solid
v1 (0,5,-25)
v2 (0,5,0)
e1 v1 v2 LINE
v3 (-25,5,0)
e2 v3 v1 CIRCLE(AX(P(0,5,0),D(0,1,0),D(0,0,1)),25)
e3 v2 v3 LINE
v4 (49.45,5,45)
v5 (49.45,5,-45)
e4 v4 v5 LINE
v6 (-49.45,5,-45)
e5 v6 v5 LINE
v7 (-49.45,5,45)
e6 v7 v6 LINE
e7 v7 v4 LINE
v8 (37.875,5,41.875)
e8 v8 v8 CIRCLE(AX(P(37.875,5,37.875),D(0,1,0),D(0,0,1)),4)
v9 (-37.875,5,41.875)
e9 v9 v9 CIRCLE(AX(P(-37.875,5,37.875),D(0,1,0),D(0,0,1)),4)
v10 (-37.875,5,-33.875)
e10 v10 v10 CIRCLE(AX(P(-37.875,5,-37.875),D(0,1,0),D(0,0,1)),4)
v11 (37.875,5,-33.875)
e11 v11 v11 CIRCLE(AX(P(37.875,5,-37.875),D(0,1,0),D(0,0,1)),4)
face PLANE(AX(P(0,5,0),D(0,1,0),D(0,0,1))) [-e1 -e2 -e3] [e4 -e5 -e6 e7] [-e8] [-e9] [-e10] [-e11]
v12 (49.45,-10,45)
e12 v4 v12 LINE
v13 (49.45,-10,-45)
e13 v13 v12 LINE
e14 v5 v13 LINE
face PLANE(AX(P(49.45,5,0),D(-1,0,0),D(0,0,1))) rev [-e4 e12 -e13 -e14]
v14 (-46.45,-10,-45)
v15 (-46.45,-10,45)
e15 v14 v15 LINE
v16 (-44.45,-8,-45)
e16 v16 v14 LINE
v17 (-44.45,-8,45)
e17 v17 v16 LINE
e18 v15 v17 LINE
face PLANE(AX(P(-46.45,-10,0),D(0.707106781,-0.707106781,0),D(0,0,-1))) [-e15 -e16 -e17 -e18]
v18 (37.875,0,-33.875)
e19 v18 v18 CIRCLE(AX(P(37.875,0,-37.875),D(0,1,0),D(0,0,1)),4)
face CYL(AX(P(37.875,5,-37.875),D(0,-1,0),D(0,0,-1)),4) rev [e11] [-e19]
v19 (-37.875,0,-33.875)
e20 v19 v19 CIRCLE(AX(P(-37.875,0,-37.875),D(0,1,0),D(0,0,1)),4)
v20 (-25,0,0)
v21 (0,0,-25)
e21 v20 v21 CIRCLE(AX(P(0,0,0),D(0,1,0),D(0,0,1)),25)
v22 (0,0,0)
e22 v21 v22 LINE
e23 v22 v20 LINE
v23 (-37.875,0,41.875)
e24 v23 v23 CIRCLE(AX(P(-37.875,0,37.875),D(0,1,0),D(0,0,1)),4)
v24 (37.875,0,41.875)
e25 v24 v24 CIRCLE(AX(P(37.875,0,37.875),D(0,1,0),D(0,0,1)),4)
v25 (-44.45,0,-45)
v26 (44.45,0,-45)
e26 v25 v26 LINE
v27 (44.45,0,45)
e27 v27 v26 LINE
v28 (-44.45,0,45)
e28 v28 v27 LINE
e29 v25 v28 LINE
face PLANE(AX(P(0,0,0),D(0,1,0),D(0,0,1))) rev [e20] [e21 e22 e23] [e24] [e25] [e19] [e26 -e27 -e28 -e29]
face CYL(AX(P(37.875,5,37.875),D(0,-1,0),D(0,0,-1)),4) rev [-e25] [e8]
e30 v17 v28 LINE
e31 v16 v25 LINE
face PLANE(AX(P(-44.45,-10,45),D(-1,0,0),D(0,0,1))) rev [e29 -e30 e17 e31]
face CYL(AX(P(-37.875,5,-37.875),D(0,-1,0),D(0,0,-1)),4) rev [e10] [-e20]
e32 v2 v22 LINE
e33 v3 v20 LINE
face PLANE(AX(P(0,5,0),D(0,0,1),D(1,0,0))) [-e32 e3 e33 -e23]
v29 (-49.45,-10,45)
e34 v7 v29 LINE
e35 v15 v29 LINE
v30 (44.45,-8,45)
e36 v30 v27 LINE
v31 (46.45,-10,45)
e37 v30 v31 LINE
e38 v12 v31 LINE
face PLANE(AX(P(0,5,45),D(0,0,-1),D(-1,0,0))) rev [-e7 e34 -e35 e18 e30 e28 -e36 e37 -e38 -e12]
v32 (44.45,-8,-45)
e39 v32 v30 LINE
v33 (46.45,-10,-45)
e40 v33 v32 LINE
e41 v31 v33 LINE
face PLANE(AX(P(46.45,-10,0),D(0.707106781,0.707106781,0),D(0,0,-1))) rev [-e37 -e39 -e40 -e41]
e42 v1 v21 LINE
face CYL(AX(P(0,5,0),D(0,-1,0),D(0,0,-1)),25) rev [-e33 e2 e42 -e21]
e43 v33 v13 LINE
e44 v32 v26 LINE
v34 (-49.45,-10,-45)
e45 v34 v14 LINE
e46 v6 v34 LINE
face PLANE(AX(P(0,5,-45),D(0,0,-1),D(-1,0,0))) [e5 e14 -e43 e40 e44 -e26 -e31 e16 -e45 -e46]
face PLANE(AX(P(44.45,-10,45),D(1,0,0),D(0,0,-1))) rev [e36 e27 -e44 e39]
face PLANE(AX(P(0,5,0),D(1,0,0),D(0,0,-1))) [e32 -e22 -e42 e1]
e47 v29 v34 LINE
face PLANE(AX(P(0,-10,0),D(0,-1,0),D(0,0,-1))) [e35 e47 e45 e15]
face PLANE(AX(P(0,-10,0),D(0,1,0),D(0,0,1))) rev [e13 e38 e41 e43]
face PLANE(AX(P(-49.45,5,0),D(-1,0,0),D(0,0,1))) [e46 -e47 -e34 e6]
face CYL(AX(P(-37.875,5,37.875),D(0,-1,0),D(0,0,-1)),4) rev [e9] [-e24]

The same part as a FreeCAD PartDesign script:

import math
import FreeCAD as App
import Part
import Sketcher


def edges_at(feature, points):
    """Names of the edges that pass closest to the given points."""
    edges = feature.Shape.Edges
    near = lambda p: min(range(len(edges)), key=lambda i: edges[i].distToShape(Part.Vertex(*p))[0])
    return sorted({f"Edge{near(p) + 1}" for p in points})


def add_polygon(sketch, points):
    """Adds a closed chain of lines whose ends are joined by coincident constraints."""
    first, n = sketch.GeometryCount, len(points)
    for a, b in zip(points, points[1:] + points[:1]):
        sketch.addGeometry(Part.LineSegment(App.Vector(*a, 0), App.Vector(*b, 0)), False)
    for i in range(n):
        sketch.addConstraint(Sketcher.Constraint("Coincident", first + i, 2, first + (i + 1) % n, 1))

doc = App.newDocument("Part")
body = doc.addObject("PartDesign::Body", "Body")

# Sketch on XZ plane
sketch1 = body.newObject("Sketcher::SketchObject", "Sketch")
sketch1.AttachmentSupport = (doc.getObject("XZ_Plane"), [""])
sketch1.MapMode = "FlatFace"
add_polygon(sketch1, [(-49.5, -45), (-49.5, 45), (49.5, 45), (49.5, -45)])  # lines 0-3
sketch1.addGeometry(Part.Circle(App.Vector(-37.9, 37.9, 0), App.Vector(0, 0, 1), 4), False)  # 4
sketch1.addGeometry(Part.Circle(App.Vector(37.9, 37.9, 0), App.Vector(0, 0, 1), 4), False)  # 5
sketch1.addGeometry(Part.ArcOfCircle(Part.Circle(App.Vector(0, 0, 0), App.Vector(0, 0, 1), 25), math.radians(-90), math.radians(180)), False)  # 6
sketch1.addGeometry(Part.LineSegment(App.Vector(-25, 0, 0), App.Vector(0, 0, 0)), False)  # 7
sketch1.addGeometry(Part.LineSegment(App.Vector(0, 0, 0), App.Vector(0, -25, 0)), False)  # 8
sketch1.addGeometry(Part.Circle(App.Vector(-37.9, -37.9, 0), App.Vector(0, 0, 1), 4), False)  # 9
sketch1.addGeometry(Part.Circle(App.Vector(37.9, -37.9, 0), App.Vector(0, 0, 1), 4), False)  # 10
sketch1.addConstraint(Sketcher.Constraint("Coincident", 6, 2, 7, 1))
sketch1.addConstraint(Sketcher.Constraint("Coincident", 7, 2, 8, 1))
sketch1.addConstraint(Sketcher.Constraint("Coincident", 8, 2, 6, 1))
sketch1.addConstraint(Sketcher.Constraint("Vertical", 0))
sketch1.addConstraint(Sketcher.Constraint("Horizontal", 1))
sketch1.addConstraint(Sketcher.Constraint("Vertical", 2))
sketch1.addConstraint(Sketcher.Constraint("Horizontal", 3))
sketch1.addConstraint(Sketcher.Constraint("Horizontal", 7))
sketch1.addConstraint(Sketcher.Constraint("Vertical", 8))
sketch1.addConstraint(Sketcher.Constraint("Coincident", 6, 3, -1, 1))
sketch1.addConstraint(Sketcher.Constraint("Coincident", 7, 2, -1, 1))
sketch1.addConstraint(Sketcher.Constraint("Equal", 4, 5))
sketch1.addConstraint(Sketcher.Constraint("Equal", 5, 9))
sketch1.addConstraint(Sketcher.Constraint("Equal", 9, 10))
sketch1.addConstraint(Sketcher.Constraint("Symmetric", 5, 3, 9, 3, -1, 1))
sketch1.addConstraint(Sketcher.Constraint("Symmetric", 4, 3, 10, 3, -1, 1))
sketch1.addConstraint(Sketcher.Constraint("Symmetric", 0, 2, 2, 2, -1, 1))
sketch1.addConstraint(Sketcher.Constraint("Symmetric", 4, 3, 5, 3, -2))
sketch1.addConstraint(Sketcher.Constraint("Diameter", 4, 8.0))
sketch1.addConstraint(Sketcher.Constraint("Radius", 6, 25.0))
sketch1.addConstraint(Sketcher.Constraint("DistanceY", 0, 1, 0, 2, 90.0))
sketch1.addConstraint(Sketcher.Constraint("DistanceX", 1, 1, 1, 2, 98.9))
sketch1.addConstraint(Sketcher.Constraint("DistanceX", 4, 3, 5, 3, 75.75))
sketch1.addConstraint(Sketcher.Constraint("DistanceY", 9, 3, 4, 3, 75.75))
pad1 = body.newObject("PartDesign::Pad", "Pad")
pad1.Profile = sketch1
pad1.Length = 5
pad1.Reversed = True

# Sketch on XZ plane
sketch2 = body.newObject("Sketcher::SketchObject", "Sketch001")
sketch2.AttachmentSupport = (doc.getObject("XZ_Plane"), [""])
sketch2.MapMode = "FlatFace"
add_polygon(sketch2, [(-49, 45), (-49, -45), (-44, -45), (-44, 45)])  # lines 0-3
add_polygon(sketch2, [(44, 45), (44, -45), (49, -45), (49, 45)])  # lines 4-7
sketch2.addConstraint(Sketcher.Constraint("Vertical", 0))
sketch2.addConstraint(Sketcher.Constraint("Horizontal", 1))
sketch2.addConstraint(Sketcher.Constraint("Vertical", 2))
sketch2.addConstraint(Sketcher.Constraint("Horizontal", 3))
sketch2.addConstraint(Sketcher.Constraint("Vertical", 4))
sketch2.addConstraint(Sketcher.Constraint("Horizontal", 5))
sketch2.addConstraint(Sketcher.Constraint("Vertical", 6))
sketch2.addConstraint(Sketcher.Constraint("Horizontal", 7))
sketch2.addConstraint(Sketcher.Constraint("Symmetric", 2, 2, 4, 2, -1, 1))
sketch2.addConstraint(Sketcher.Constraint("Symmetric", 0, 2, 6, 2, -1, 1))
sketch2.addConstraint(Sketcher.Constraint("Horizontal", 1, 2, 4, 2))
sketch2.addConstraint(Sketcher.Constraint("DistanceX", 1, 1, 1, 2, 5.0))
sketch2.addConstraint(Sketcher.Constraint("DistanceY", 0, 2, 0, 1, 90.0))
sketch2.addConstraint(Sketcher.Constraint("DistanceX", 1, 2, 4, 2, 88.9))
pad2 = body.newObject("PartDesign::Pad", "Pad001")
pad2.Profile = sketch2
pad2.Length = 10
doc.recompute()

chamfer = body.newObject("PartDesign::Chamfer", "Chamfer")
chamfer.Base = (pad2, edges_at(pad2, [(-44.45, -10, 0), (44.45, -10, 0)]))
chamfer.Size = 2

doc.recompute()
